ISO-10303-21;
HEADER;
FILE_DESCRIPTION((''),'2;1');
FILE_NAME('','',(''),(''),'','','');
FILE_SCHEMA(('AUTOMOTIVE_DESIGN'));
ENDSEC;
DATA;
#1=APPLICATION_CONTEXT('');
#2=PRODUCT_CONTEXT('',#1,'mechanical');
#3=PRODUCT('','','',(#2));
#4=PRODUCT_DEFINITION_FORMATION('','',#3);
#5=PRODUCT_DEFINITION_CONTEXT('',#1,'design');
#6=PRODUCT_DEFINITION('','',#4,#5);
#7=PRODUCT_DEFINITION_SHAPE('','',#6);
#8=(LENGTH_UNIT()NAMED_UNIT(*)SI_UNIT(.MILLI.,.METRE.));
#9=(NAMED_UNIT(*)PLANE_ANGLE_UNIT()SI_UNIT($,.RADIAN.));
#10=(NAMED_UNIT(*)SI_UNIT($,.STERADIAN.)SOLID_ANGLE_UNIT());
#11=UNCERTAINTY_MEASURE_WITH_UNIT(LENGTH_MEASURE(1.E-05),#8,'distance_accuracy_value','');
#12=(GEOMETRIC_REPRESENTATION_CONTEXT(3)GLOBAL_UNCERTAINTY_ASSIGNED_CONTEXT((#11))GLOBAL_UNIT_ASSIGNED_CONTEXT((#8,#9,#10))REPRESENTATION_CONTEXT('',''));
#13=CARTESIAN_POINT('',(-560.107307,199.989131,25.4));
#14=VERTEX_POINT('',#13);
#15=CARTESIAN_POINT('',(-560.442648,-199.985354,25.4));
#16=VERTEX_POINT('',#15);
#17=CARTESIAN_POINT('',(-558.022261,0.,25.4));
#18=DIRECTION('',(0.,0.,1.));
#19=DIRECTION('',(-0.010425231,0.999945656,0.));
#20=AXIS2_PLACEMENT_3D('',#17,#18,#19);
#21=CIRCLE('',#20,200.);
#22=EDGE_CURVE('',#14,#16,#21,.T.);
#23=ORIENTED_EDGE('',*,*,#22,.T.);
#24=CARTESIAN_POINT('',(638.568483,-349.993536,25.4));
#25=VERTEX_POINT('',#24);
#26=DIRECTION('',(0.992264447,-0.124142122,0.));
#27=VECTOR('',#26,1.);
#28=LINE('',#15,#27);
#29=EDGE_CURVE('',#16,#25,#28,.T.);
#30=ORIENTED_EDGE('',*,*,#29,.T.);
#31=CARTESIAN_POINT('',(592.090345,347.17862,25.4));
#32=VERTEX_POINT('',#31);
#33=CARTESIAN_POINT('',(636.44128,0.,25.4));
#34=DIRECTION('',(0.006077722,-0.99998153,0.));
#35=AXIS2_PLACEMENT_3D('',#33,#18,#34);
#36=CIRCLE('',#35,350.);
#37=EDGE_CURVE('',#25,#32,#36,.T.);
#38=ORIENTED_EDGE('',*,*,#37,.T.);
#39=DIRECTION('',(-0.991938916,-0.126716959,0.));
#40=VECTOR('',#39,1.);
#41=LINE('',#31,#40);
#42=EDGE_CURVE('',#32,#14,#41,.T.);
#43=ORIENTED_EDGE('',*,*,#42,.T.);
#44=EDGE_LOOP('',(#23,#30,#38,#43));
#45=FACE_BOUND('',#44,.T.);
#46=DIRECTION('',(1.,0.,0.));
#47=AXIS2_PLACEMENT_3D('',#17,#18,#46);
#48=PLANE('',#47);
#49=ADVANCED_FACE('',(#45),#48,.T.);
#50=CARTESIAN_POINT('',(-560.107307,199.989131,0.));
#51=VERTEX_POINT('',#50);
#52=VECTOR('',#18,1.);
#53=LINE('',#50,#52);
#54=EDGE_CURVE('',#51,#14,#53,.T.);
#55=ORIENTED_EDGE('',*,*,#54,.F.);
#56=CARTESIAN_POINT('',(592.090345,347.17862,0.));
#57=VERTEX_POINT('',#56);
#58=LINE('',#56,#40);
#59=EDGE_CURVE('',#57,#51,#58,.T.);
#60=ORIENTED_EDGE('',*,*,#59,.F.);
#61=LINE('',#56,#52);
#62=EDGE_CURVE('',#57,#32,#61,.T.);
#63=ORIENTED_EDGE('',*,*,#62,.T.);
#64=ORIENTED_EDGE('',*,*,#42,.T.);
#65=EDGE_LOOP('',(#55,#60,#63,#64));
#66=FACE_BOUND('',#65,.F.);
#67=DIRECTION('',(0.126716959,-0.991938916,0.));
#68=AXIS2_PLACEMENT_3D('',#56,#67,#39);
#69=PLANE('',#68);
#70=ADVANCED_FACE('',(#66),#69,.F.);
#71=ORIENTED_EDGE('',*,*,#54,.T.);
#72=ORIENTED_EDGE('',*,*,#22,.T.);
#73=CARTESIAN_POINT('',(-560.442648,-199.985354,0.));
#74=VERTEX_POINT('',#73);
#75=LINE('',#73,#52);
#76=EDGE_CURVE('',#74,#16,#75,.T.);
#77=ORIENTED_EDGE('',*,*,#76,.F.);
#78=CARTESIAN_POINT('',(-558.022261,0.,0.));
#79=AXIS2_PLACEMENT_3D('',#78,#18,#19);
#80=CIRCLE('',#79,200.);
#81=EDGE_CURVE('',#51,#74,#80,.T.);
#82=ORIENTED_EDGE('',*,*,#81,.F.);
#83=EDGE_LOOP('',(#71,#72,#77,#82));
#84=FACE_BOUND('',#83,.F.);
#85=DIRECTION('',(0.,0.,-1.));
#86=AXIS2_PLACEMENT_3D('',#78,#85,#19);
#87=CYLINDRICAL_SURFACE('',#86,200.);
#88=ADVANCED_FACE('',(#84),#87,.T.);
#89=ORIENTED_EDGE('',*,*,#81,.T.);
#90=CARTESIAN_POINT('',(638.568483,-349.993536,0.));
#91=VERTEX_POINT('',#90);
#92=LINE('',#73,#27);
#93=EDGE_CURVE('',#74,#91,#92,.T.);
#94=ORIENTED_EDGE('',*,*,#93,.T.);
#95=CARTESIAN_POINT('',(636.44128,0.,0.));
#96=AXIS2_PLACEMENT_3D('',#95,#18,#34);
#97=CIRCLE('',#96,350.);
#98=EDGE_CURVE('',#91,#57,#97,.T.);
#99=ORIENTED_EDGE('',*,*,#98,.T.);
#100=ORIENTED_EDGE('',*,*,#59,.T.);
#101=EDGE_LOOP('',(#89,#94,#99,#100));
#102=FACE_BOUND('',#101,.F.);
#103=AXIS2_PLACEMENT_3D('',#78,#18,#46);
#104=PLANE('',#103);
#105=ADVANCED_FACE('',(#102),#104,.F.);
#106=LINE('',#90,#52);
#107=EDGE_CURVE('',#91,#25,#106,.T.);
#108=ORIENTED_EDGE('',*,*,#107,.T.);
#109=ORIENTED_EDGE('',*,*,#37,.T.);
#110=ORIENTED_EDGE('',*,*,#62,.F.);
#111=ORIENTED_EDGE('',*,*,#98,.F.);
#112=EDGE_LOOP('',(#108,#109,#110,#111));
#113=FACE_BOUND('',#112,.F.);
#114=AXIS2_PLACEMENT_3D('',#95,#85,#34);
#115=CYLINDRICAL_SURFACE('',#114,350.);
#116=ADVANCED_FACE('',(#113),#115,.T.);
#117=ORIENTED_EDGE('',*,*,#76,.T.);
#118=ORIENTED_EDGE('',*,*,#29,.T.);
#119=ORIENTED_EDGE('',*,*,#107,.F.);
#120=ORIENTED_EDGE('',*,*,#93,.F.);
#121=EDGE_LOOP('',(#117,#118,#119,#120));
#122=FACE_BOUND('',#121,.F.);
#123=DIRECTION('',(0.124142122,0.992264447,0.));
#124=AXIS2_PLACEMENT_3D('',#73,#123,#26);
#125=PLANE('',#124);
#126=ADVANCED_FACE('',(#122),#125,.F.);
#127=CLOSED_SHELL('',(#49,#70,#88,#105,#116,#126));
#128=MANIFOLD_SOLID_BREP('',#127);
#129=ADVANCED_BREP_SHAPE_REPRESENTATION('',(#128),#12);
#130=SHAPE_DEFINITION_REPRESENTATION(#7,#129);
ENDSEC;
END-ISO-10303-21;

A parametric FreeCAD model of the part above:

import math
import FreeCAD as App
import Part
import Sketcher

doc = App.newDocument("Part")
body = doc.addObject("PartDesign::Body", "Body")

sketch1 = body.newObject("Sketcher::SketchObject", "Sketch")
sketch1.AttachmentSupport = (doc.getObject("XY_Plane"), [""])
sketch1.MapMode = "FlatFace"
sketch1.addGeometry([
    Part.ArcOfCircle(Part.Circle(App.Vector(-558, 0, 0), App.Vector(0, 0, 1), 200), math.radians(91), math.radians(269)),
    Part.LineSegment(App.Vector(-560, -200, 0), App.Vector(639, -350, 0)),
    Part.ArcOfCircle(Part.Circle(App.Vector(636, 0, 0), App.Vector(0, 0, 1), 350), math.radians(-90), math.radians(97)),
    Part.LineSegment(App.Vector(592, 347, 0), App.Vector(-560, 200, 0)),
], False)
sketch1.addConstraint([
    Sketcher.Constraint("Coincident", 0, 2, 1, 1),
    Sketcher.Constraint("Coincident", 1, 2, 2, 1),
    Sketcher.Constraint("Tangent", 2, 2, 3, 1),
    Sketcher.Constraint("Coincident", 3, 2, 0, 1),
    Sketcher.Constraint("PointOnObject", 0, 3, -1),
    Sketcher.Constraint("PointOnObject", 2, 3, -1),
    Sketcher.Constraint("Radius", 0, 200.0),
    Sketcher.Constraint("Radius", 2, 350.0),
    Sketcher.Constraint("Distance", 1, 1208.358451),
    Sketcher.Constraint("DistanceX", 0, 3, -1, 1, 558.022261),
    Sketcher.Constraint("DistanceX", -1, 1, 2, 3, 636.44128),
    Sketcher.Constraint("DistanceY", -1, 1, 3, 2, 199.989131),
    Sketcher.Constraint("DistanceX", 0, 2, 2, 3, 1196.883928),
])
pad1 = body.newObject("PartDesign::Pad", "Pad")
pad1.Profile = sketch1
pad1.Length = 25.4

doc.recompute()
